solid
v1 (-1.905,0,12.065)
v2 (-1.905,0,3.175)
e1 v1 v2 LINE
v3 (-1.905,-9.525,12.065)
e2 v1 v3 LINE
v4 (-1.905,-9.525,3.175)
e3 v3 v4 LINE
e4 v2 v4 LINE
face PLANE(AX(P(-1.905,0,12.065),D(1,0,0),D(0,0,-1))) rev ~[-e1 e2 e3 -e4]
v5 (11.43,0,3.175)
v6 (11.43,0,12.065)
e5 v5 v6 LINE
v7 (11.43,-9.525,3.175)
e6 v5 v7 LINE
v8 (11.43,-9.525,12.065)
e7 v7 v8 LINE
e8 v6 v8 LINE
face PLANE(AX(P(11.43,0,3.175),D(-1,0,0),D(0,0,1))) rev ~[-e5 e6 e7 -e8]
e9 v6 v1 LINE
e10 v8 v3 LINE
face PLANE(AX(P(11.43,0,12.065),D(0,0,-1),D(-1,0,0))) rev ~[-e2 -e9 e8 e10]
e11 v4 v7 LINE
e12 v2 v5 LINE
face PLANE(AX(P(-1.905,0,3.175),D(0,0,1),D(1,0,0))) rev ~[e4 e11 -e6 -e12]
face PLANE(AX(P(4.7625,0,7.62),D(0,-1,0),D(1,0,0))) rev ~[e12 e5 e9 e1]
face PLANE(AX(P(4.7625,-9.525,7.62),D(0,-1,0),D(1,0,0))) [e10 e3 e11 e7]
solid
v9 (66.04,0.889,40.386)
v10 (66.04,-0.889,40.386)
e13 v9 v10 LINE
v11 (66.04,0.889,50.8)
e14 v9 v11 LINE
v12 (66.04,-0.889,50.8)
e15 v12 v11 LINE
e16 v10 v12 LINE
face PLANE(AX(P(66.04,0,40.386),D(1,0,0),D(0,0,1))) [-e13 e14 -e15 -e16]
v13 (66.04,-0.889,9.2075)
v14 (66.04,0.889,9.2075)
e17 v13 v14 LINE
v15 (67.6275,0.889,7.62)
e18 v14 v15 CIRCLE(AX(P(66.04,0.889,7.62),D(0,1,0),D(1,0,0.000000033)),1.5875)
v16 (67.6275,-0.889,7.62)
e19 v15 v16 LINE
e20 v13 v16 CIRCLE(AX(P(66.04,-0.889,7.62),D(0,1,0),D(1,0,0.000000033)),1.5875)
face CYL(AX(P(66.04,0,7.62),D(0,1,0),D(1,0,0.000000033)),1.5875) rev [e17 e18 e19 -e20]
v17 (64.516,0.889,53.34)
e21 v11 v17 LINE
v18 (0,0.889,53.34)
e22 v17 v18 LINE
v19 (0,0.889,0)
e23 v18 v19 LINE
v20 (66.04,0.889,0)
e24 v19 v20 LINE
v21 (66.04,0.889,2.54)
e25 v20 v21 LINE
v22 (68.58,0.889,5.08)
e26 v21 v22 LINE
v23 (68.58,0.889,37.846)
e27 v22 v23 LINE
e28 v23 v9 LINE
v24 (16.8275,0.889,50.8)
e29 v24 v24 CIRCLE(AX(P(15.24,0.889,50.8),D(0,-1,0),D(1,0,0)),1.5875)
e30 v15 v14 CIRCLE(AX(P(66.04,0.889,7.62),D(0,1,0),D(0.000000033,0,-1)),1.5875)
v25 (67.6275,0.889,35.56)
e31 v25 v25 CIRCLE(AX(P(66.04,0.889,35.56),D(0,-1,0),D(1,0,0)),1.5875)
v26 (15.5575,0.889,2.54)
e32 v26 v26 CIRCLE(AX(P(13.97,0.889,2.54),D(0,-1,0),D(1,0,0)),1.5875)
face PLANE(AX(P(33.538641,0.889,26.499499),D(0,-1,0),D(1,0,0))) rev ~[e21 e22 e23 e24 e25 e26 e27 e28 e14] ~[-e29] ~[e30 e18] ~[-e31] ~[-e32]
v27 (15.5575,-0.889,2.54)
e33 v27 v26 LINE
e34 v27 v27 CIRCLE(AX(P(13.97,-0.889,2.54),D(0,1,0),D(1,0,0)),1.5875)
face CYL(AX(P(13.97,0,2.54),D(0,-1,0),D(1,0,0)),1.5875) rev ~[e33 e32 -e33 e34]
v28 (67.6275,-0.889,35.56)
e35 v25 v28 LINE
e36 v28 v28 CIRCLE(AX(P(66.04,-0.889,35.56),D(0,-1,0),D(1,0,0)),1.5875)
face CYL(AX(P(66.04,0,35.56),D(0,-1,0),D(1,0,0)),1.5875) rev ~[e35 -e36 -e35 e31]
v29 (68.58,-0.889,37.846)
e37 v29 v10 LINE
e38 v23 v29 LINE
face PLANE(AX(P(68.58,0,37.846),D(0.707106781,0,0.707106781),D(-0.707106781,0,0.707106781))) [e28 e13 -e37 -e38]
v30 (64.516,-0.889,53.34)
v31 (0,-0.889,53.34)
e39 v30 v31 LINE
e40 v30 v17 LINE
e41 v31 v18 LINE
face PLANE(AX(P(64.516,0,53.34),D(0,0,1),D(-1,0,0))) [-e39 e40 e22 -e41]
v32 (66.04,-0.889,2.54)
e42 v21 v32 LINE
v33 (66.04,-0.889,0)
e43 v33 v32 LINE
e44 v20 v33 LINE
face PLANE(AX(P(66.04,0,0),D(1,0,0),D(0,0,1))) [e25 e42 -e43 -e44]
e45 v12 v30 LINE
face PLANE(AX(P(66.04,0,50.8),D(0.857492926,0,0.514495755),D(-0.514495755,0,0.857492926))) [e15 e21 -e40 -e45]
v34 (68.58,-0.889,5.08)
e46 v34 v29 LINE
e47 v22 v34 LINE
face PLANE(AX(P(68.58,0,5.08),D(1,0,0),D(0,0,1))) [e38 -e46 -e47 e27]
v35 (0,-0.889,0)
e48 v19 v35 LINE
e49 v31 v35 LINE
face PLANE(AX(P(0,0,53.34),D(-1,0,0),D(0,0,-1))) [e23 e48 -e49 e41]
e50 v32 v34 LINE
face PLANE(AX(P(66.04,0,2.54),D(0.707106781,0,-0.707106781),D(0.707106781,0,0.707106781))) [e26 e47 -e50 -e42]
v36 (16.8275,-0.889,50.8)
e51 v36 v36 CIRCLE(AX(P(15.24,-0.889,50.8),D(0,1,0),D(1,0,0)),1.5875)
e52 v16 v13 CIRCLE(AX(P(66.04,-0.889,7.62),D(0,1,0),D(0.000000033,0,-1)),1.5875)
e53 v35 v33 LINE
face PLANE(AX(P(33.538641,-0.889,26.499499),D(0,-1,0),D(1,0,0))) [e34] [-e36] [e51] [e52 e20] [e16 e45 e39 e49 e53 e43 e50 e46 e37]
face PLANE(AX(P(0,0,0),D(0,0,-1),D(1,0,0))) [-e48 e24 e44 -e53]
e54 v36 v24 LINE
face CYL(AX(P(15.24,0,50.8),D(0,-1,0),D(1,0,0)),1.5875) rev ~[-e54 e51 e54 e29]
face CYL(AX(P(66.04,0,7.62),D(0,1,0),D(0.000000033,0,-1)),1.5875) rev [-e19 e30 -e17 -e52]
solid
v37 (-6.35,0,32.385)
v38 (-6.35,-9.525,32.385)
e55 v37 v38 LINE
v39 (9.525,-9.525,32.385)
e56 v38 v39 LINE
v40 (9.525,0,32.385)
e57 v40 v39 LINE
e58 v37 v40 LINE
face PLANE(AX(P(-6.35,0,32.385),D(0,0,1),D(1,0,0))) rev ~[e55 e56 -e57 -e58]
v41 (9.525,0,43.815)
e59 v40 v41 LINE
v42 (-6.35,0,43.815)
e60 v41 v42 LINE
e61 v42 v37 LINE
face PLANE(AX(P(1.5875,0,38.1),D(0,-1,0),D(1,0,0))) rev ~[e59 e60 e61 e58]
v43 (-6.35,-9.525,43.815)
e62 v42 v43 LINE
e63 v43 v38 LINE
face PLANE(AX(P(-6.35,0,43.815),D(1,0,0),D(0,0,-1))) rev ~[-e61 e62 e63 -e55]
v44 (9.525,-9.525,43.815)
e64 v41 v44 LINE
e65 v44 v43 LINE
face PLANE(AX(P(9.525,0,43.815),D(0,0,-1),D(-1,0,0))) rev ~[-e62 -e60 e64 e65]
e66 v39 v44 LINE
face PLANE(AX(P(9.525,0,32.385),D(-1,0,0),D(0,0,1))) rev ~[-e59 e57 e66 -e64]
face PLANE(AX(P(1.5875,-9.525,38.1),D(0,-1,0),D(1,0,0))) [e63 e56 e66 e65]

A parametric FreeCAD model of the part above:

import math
import FreeCAD as App
import Part
import Sketcher
from FreeCAD import Vector
Q = App.Units.Quantity


def add_polygon(sketch, points):
    """Adds a closed chain of lines whose ends are joined by coincident constraints."""
    first, n = sketch.GeometryCount, len(points)
    for a, b in zip(points, points[1:] + points[:1]):
        sketch.addGeometry(Part.LineSegment(App.Vector(*a, 0), App.Vector(*b, 0)), False)
    for i in range(n):
        sketch.addConstraint(Sketcher.Constraint("Coincident", first + i, 2, first + (i + 1) % n, 1))

doc = App.newDocument("Part")
params = doc.addObject("Spreadsheet::Sheet", "Params")
for row, (alias, value) in enumerate([
    ("sketch1_width", "2.6 in"),
    ("sketch1_height", "2.1 in"),
    ("sketch1_height2", "0.1 in"),
    ("sketch1_width2", "2.54 in"),
    ("sketch1_height3", "1.29 in"),
    ("pad1_length", "0.07 in"),
    ("sketch2_diameter", "0.125 in"),
    ("pocket1_length", "1 in"),
    ("sketch3_height", "0.35 in"),
    ("sketch3_height2", "0.45 in"),
    ("sketch3_width", "0.525 in"),
    ("sketch3_width2", "0.625 in"),
    ("pad2_length", "0.375 in"),
], start=1):
    params.set(f"A{row}", alias)
    params.set(f"B{row}", "=" + value)
    params.setAlias(f"B{row}", alias)

body = doc.addObject("PartDesign::Body", "Body")

# Sketch on XZ plane
sketch1 = body.newObject("Sketcher::SketchObject", "Sketch")
sketch1.AttachmentSupport = (doc.getObject("XZ_Plane"), [""])
sketch1.MapMode = "FlatFace"
add_polygon(sketch1, [(0, 53.3), (0, 0), (66, 0), (66, 2.5), (68.6, 5.1), (68.6, 37.8), (66, 40.4), (66, 50.8), (64.5, 53.3)])  # lines 0-8
sketch1.addConstraint([
    Sketcher.Constraint("Vertical", 0),
    Sketcher.Constraint("Horizontal", 1),
    Sketcher.Constraint("Vertical", 2),
    Sketcher.Constraint("Vertical", 4),
    Sketcher.Constraint("Vertical", 6),
    Sketcher.Constraint("Horizontal", 8),
    Sketcher.Constraint("Coincident", 0, 2, -1, 1),
    Sketcher.Constraint("Perpendicular", 3, 5),
    Sketcher.Constraint("Vertical", 2, 2, 5, 2),
    Sketcher.Constraint("Equal", 3, 5),
    Sketcher.Constraint("DistanceX", 1, 1, 1, 2, Q("2.6 in")),
    Sketcher.Constraint("DistanceY", 0, 2, 0, 1, Q("2.1 in")),
    Sketcher.Constraint("DistanceY", 2, 1, 2, 2, Q("0.1 in")),
    Sketcher.Constraint("DistanceY", -1, 1, 6, 2, Q("2 in")),
    Sketcher.Constraint("DistanceX", 8, 2, 8, 1, Q("2.54 in")),
    Sketcher.Constraint("DistanceY", 4, 1, 4, 2, Q("1.29 in")),
    Sketcher.Constraint("DistanceY", 6, 1, 6, 2, Q("0.41 in")),
])
sketch1.setExpression("Constraints[19]", "Params.sketch1_width")
sketch1.setExpression("Constraints[20]", "Params.sketch1_height")
sketch1.setExpression("Constraints[21]", "Params.sketch1_height2")
sketch1.setExpression("Constraints[23]", "Params.sketch1_width2")
sketch1.setExpression("Constraints[24]", "Params.sketch1_height3")
pad1 = body.newObject("PartDesign::Pad", "Pad")
pad1.Profile = sketch1
pad1.setExpression("Length", "Params.pad1_length")
pad1.Midplane = True

# Sketch on XZ plane
sketch2 = body.newObject("Sketcher::SketchObject", "Sketch001")
sketch2.AttachmentSupport = (doc.getObject("XZ_Plane"), [""])
sketch2.MapMode = "FlatFace"
sketch2.addGeometry([
    Part.Circle(Vector(15.2, 50.8, 0), Vector(0, 0, 1), 1.6),  # 0
    Part.Circle(Vector(14, 2.5, 0), Vector(0, 0, 1), 1.6),  # 1
    Part.ArcOfCircle(Part.Circle(Vector(66, 7.6, 0), Vector(0, 0, 1), 1.6), math.radians(-90), math.radians(0)),  # 2
    Part.ArcOfCircle(Part.Circle(Vector(66, 7.6, 0), Vector(0, 0, 1), 1.6), math.radians(0), math.radians(90)),  # 3
    Part.ArcOfCircle(Part.Circle(Vector(66, 7.6, 0), Vector(0, 0, 1), 1.6), math.radians(90), math.radians(270)),  # 4
    Part.Circle(Vector(66, 35.6, 0), Vector(0, 0, 1), 1.6),  # 5
], False)
sketch2.addConstraint([
    Sketcher.Constraint("Tangent", 2, 2, 3, 1),
    Sketcher.Constraint("Tangent", 3, 2, 4, 1),
    Sketcher.Constraint("Tangent", 4, 2, 2, 1),
    Sketcher.Constraint("Equal", 0, 1),
    Sketcher.Constraint("Equal", 1, 2),
    Sketcher.Constraint("Equal", 4, 5),
    Sketcher.Constraint("Horizontal", 4, 3, 2, 2),
    Sketcher.Constraint("Vertical", 4, 3, 5, 3),
    Sketcher.Constraint("Vertical", 5, 3, 3, 2),
    Sketcher.Constraint("Vertical", 3, 2, 4, 2),
    Sketcher.Constraint("Diameter", 0, Q("0.125 in")),
    Sketcher.Constraint("DistanceY", -1, 1, 0, 3, Q("2 in")),
    Sketcher.Constraint("DistanceX", 0, 3, 2, 3, Q("2 in")),
    Sketcher.Constraint("DistanceX", -1, 1, 0, 3, Q("0.6 in")),
    Sketcher.Constraint("DistanceY", -1, 1, 1, 3, Q("0.1 in")),
    Sketcher.Constraint("DistanceY", -1, 1, 2, 3, Q("0.3 in")),
    Sketcher.Constraint("DistanceY", -1, 1, 5, 3, Q("1.4 in")),
    Sketcher.Constraint("DistanceX", -1, 1, 1, 3, Q("0.55 in")),
])
sketch2.setExpression("Constraints[10]", "Params.sketch2_diameter")
pocket1 = body.newObject("PartDesign::Pocket", "Pocket")
pocket1.Profile = sketch2
pocket1.setExpression("Length", "Params.pocket1_length")
pocket1.Midplane = True
body2 = doc.addObject("PartDesign::Body", "Body001")
body2.AllowCompound = True

# Sketch on XZ plane
sketch3 = body2.newObject("Sketcher::SketchObject", "Sketch002")
sketch3.AttachmentSupport = (doc.getObject("XZ_Plane001"), [""])
sketch3.MapMode = "FlatFace"
add_polygon(sketch3, [(-2, 3), (11, 3), (11, 12), (-2, 12)])  # lines 0-3
add_polygon(sketch3, [(-6, 44), (-6, 32), (10, 32), (10, 44)])  # lines 4-7
sketch3.addConstraint([
    Sketcher.Constraint("Horizontal", 0),
    Sketcher.Constraint("Vertical", 1),
    Sketcher.Constraint("Horizontal", 2),
    Sketcher.Constraint("Vertical", 3),
    Sketcher.Constraint("Vertical", 4),
    Sketcher.Constraint("Horizontal", 5),
    Sketcher.Constraint("Vertical", 6),
    Sketcher.Constraint("Horizontal", 7),
    Sketcher.Constraint("DistanceY", 1, 1, 1, 2, Q("0.35 in")),
    Sketcher.Constraint("DistanceY", 4, 2, 4, 1, Q("0.45 in")),
    Sketcher.Constraint("DistanceY", 2, 2, 4, 2, Q("0.8 in")),
    Sketcher.Constraint("DistanceX", 4, 2, 1, 2, Q("0.7 in")),
    Sketcher.Constraint("DistanceX", 0, 1, 0, 2, Q("0.525 in")),
    Sketcher.Constraint("DistanceX", 5, 1, 5, 2, Q("0.625 in")),
    Sketcher.Constraint("DistanceX", -1, 1, 0, 2, Q("0.45 in")),
    Sketcher.Constraint("DistanceY", -1, 1, 0, 2, Q("0.125 in")),
])
sketch3.setExpression("Constraints[16]", "Params.sketch3_height")
sketch3.setExpression("Constraints[17]", "Params.sketch3_height2")
sketch3.setExpression("Constraints[20]", "Params.sketch3_width")
sketch3.setExpression("Constraints[21]", "Params.sketch3_width2")
pad2 = body2.newObject("PartDesign::Pad", "Pad001")
pad2.Profile = sketch3
pad2.setExpression("Length", "Params.pad2_length")

doc.recompute()
